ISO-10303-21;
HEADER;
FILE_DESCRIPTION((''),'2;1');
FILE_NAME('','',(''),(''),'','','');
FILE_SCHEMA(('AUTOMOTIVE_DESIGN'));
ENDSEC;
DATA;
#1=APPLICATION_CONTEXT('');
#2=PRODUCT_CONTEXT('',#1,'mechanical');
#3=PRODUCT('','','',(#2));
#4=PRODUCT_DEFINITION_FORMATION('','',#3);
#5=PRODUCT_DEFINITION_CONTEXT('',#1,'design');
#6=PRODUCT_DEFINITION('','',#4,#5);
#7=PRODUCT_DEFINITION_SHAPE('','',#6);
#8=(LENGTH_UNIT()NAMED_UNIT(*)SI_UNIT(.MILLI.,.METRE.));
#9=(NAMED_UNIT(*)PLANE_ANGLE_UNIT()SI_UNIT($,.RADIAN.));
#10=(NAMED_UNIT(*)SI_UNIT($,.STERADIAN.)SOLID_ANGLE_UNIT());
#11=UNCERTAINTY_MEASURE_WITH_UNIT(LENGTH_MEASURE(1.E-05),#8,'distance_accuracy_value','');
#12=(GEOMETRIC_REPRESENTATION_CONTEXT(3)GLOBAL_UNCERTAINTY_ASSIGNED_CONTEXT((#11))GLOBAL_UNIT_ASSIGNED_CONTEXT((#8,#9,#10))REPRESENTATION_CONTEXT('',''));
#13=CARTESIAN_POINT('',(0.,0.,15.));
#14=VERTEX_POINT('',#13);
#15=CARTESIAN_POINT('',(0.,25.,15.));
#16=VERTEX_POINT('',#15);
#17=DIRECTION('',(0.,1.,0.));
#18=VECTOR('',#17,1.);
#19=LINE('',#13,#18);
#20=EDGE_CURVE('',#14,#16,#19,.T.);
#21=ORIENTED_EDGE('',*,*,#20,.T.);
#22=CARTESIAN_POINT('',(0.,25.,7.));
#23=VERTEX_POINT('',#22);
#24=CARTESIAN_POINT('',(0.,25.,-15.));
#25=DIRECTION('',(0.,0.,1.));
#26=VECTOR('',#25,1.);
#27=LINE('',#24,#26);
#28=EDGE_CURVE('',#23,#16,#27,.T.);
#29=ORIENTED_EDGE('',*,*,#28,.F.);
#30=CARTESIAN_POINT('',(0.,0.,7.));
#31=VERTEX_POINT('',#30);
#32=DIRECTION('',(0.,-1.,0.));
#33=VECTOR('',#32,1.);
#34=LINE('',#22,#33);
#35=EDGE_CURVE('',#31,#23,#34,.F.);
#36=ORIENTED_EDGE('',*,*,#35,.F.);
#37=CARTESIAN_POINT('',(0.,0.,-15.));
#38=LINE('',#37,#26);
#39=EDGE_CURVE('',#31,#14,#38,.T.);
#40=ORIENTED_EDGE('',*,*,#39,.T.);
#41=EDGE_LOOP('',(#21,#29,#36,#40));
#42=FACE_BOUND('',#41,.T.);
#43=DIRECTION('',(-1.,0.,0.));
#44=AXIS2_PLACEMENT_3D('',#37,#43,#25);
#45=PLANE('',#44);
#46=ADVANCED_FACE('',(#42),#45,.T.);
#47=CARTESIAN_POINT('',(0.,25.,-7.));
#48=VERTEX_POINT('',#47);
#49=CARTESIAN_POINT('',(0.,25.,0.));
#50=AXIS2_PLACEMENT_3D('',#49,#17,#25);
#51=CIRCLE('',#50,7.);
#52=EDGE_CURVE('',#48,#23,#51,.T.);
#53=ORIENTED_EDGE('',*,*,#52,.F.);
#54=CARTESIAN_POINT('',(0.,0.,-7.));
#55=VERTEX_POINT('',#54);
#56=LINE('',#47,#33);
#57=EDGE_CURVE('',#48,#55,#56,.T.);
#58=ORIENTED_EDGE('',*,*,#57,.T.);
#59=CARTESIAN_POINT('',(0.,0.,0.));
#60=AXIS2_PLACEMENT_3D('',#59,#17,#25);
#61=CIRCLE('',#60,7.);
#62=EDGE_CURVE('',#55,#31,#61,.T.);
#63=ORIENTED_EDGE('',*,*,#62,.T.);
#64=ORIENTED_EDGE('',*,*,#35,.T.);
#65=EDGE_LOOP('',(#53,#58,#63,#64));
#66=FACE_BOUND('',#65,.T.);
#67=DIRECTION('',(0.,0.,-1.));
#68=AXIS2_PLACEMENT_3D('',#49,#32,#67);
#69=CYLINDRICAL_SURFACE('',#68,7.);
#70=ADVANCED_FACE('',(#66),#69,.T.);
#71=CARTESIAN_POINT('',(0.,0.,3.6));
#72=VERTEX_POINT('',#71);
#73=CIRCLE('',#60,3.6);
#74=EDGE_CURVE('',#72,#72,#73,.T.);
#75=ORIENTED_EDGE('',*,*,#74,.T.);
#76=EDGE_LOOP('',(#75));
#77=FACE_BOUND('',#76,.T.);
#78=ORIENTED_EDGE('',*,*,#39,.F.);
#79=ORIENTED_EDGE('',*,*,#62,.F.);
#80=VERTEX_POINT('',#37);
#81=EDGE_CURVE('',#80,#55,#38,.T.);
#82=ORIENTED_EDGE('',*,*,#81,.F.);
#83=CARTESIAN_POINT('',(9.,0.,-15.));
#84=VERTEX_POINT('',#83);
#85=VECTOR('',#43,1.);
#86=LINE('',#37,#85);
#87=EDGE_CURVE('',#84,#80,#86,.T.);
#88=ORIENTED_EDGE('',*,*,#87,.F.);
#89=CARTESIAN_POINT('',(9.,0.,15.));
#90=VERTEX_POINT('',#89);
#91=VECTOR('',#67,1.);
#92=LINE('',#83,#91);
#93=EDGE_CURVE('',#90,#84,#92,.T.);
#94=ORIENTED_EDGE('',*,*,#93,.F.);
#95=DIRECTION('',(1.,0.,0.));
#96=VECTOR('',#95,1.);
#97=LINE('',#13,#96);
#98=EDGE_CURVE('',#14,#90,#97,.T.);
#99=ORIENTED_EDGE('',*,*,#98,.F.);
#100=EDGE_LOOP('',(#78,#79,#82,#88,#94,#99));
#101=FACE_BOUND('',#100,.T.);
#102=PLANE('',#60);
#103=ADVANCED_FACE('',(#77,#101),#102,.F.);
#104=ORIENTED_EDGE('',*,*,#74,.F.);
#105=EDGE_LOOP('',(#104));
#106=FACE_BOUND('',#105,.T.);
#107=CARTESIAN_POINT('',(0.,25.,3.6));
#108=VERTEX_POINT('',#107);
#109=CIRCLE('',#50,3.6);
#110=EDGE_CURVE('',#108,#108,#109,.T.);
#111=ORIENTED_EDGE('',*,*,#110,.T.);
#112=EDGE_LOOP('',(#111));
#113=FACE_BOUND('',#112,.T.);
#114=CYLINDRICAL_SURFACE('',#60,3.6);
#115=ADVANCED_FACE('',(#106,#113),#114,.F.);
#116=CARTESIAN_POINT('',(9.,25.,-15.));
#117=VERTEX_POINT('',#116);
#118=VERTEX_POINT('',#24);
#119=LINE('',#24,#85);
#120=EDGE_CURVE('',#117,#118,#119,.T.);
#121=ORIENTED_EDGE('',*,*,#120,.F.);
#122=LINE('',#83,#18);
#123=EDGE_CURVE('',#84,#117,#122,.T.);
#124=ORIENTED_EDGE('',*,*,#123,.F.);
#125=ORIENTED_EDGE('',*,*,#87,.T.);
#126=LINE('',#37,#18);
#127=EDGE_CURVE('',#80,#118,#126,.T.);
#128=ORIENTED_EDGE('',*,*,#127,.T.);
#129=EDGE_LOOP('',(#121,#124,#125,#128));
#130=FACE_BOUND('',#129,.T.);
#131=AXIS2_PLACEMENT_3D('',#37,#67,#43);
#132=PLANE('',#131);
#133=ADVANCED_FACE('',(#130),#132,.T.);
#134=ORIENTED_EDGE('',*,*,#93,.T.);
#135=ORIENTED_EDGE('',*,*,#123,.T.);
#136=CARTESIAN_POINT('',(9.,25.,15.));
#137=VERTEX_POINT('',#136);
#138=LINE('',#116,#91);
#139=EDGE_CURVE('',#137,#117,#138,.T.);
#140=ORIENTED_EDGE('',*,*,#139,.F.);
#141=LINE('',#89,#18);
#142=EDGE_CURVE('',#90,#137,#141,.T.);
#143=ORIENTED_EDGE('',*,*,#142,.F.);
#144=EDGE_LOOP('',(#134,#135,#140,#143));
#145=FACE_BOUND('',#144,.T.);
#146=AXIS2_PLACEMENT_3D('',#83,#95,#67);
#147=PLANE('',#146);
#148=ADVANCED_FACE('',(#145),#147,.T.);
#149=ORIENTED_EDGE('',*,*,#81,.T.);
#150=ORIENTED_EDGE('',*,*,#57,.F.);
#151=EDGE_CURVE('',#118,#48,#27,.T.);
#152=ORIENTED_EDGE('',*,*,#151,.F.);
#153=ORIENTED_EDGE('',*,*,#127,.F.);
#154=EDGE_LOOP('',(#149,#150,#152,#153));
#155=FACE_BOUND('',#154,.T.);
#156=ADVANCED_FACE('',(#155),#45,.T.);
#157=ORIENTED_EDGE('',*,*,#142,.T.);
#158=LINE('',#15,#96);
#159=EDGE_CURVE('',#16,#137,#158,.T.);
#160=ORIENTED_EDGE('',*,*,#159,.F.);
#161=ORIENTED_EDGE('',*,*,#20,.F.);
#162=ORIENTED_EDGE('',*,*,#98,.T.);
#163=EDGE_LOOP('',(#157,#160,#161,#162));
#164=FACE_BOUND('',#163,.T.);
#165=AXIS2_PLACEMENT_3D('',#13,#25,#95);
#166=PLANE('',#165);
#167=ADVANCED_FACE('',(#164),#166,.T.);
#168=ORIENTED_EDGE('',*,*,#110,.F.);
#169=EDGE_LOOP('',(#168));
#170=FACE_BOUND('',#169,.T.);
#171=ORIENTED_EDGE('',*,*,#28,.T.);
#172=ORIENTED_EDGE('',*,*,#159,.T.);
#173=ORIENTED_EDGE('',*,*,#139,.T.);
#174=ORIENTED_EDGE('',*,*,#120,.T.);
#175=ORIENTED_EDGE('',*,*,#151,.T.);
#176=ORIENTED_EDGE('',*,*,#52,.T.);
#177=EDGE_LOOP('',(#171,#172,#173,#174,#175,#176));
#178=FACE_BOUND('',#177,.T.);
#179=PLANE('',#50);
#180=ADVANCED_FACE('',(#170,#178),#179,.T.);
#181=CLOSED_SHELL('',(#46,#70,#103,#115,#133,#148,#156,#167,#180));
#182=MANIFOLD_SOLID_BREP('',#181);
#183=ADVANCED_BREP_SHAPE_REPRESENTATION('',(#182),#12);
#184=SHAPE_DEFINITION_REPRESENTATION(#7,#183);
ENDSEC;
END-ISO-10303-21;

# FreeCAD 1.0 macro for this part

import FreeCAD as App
import Part
import Sketcher
Q = App.Units.Quantity


def add_polygon(sketch, points):
    """Adds a closed chain of lines whose ends are joined by coincident constraints."""
    first, n = sketch.GeometryCount, len(points)
    for a, b in zip(points, points[1:] + points[:1]):
        sketch.addGeometry(Part.LineSegment(App.Vector(*a, 0), App.Vector(*b, 0)), False)
    for i in range(n):
        sketch.addConstraint(Sketcher.Constraint("Coincident", first + i, 2, first + (i + 1) % n, 1))

doc = App.newDocument("Part")
body = doc.addObject("PartDesign::Body", "Body")

sketch1 = body.newObject("Sketcher::SketchObject", "Sketch")
sketch1.AttachmentSupport = (doc.getObject("XZ_Plane"), [""])
sketch1.MapMode = "FlatFace"
sketch1.addGeometry(Part.Circle(App.Vector(0, 0, 0), App.Vector(0, 0, 1), 7), False)
sketch1.addConstraint([
    Sketcher.Constraint("Coincident", 0, 3, -1, 1),
    Sketcher.Constraint("Diameter", 0, Q("14 mm")),
])
pad1 = body.newObject("PartDesign::Pad", "Pad")
pad1.Profile = sketch1
pad1.Length = 25
pad1.Reversed = True

sketch2 = body.newObject("Sketcher::SketchObject", "Sketch001")
sketch2.AttachmentSupport = (doc.getObject("XZ_Plane"), [""])
sketch2.MapMode = "FlatFace"
sketch2.AttachmentOffset = App.Placement(App.Vector(0, 0, -25), App.Rotation())
add_polygon(sketch2, [(0, -15), (0, 15), (9, 15), (9, -15)])
sketch2.addConstraint([
    Sketcher.Constraint("Vertical", 0),
    Sketcher.Constraint("Horizontal", 1),
    Sketcher.Constraint("Vertical", 2),
    Sketcher.Constraint("Horizontal", 3),
    Sketcher.Constraint("Symmetric", 0, 2, 3, 2, -1, 1),
    Sketcher.Constraint("DistanceX", 1, 1, 1, 2, Q("9 mm")),
    Sketcher.Constraint("DistanceY", 0, 1, 0, 2, Q("30 mm")),
])
pad2 = body.newObject("PartDesign::Pad", "Pad001")
pad2.Profile = sketch2
pad2.Length = 25

sketch3 = body.newObject("Sketcher::SketchObject", "Sketch002")
sketch3.AttachmentSupport = (doc.getObject("XZ_Plane"), [""])
sketch3.MapMode = "FlatFace"
sketch3.AttachmentOffset = App.Placement(App.Vector(0, 0, -25), App.Rotation())
sketch3.addGeometry(Part.Circle(App.Vector(0, 0, 0), App.Vector(0, 0, 1), 3.6), False)
sketch3.addConstraint([
    Sketcher.Constraint("Coincident", 0, 3, -1, 1),
    Sketcher.Constraint("Diameter", 0, Q("7.2 mm")),
])
pocket1 = body.newObject("PartDesign::Pocket", "Pocket")
pocket1.Profile = sketch3
pocket1.Type = "ThroughAll"
pocket1.Reversed = True

doc.recompute()
